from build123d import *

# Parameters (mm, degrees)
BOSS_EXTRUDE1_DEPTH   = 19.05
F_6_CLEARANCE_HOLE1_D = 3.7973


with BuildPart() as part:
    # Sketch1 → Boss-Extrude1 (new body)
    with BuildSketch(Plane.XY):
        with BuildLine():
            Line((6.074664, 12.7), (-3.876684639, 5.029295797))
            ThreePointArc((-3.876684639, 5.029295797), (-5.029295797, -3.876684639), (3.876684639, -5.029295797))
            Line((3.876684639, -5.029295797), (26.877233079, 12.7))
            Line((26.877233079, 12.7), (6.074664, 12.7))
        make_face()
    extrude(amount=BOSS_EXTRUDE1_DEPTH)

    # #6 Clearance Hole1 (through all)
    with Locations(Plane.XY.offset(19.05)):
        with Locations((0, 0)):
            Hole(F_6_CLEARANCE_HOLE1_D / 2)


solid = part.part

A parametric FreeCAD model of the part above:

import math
import FreeCAD as App
import Part
import Sketcher
from FreeCAD import Vector
Q = App.Units.Quantity

doc = App.newDocument("Part")
params = doc.addObject("Spreadsheet::Sheet", "Params")
for row, (alias, value) in enumerate([
    ("sketch1_radius", "0.25 in"),
    ("pad1_length", "0.75 in"),
    ("hole_diameter", "0.1495 in"),
], start=1):
    params.set(f"A{row}", alias)
    params.set(f"B{row}", "=" + value)
    params.setAlias(f"B{row}", alias)

body = doc.addObject("PartDesign::Body", "Body")

# Sketch on XY plane
sketch1 = body.newObject("Sketcher::SketchObject", "Sketch")
sketch1.AttachmentSupport = (doc.getObject("XY_Plane"), [""])
sketch1.MapMode = "FlatFace"
sketch1.addGeometry(Part.LineSegment(Vector(6, 13, 0), Vector(-4, 5, 0)), False)
sketch1.addGeometry(Part.ArcOfCircle(Part.Circle(Vector(0, 0, 0), Vector(0, 0, 1), 6), math.radians(128), math.radians(308)), False)
sketch1.addGeometry(Part.LineSegment(Vector(4, -5, 0), Vector(27, 13, 0)), False)
sketch1.addGeometry(Part.LineSegment(Vector(27, 13, 0), Vector(6, 13, 0)), False)
sketch1.addConstraint(Sketcher.Constraint("Tangent", 0, 2, 1, 1))
sketch1.addConstraint(Sketcher.Constraint("Tangent", 1, 2, 2, 1))
sketch1.addConstraint(Sketcher.Constraint("Coincident", 2, 2, 3, 1))
sketch1.addConstraint(Sketcher.Constraint("Coincident", 3, 2, 0, 1))
sketch1.addConstraint(Sketcher.Constraint("Horizontal", 3))
sketch1.addConstraint(Sketcher.Constraint("Coincident", 1, 3, -1, 1))
sketch1.addConstraint(Sketcher.Constraint("Parallel", 0, 2))
sketch1.addConstraint(Sketcher.Constraint("Radius", 1, Q("0.25 in")))
sketch1.addConstraint(Sketcher.Constraint("DistanceY", -1, 1, 2, 2, Q("0.5 in")))
sketch1.addConstraint(Sketcher.Constraint("DistanceX", 3, 2, 3, 1, 20.802569))
sketch1.setExpression("Constraints[7]", "Params.sketch1_radius")
pad1 = body.newObject("PartDesign::Pad", "Pad")
pad1.Profile = sketch1
pad1.setExpression("Length", "Params.pad1_length")

# Sketch on XY plane
sketch2 = body.newObject("Sketcher::SketchObject", "Sketch001")
sketch2.AttachmentSupport = (doc.getObject("XY_Plane"), [""])
sketch2.MapMode = "FlatFace"
sketch2.AttachmentOffset = App.Placement(Vector(0, 0, 0.75 * 25.4), App.Rotation())
sketch2.addGeometry(Part.Circle(Vector(0, 0, 0), Vector(0, 0, 1), 1.9), False)
sketch2.addConstraint(Sketcher.Constraint("Coincident", 0, 3, -1, 1))
sketch2.addConstraint(Sketcher.Constraint("Diameter", 0, Q("0.1495 in")))
doc.recompute()
hole = body.newObject("PartDesign::Hole", "Hole")
hole.Profile = sketch2
hole.ThreadType = "None"
hole.setExpression("Diameter", "Params.hole_diameter")
hole.DepthType = "ThroughAll"

doc.recompute()
